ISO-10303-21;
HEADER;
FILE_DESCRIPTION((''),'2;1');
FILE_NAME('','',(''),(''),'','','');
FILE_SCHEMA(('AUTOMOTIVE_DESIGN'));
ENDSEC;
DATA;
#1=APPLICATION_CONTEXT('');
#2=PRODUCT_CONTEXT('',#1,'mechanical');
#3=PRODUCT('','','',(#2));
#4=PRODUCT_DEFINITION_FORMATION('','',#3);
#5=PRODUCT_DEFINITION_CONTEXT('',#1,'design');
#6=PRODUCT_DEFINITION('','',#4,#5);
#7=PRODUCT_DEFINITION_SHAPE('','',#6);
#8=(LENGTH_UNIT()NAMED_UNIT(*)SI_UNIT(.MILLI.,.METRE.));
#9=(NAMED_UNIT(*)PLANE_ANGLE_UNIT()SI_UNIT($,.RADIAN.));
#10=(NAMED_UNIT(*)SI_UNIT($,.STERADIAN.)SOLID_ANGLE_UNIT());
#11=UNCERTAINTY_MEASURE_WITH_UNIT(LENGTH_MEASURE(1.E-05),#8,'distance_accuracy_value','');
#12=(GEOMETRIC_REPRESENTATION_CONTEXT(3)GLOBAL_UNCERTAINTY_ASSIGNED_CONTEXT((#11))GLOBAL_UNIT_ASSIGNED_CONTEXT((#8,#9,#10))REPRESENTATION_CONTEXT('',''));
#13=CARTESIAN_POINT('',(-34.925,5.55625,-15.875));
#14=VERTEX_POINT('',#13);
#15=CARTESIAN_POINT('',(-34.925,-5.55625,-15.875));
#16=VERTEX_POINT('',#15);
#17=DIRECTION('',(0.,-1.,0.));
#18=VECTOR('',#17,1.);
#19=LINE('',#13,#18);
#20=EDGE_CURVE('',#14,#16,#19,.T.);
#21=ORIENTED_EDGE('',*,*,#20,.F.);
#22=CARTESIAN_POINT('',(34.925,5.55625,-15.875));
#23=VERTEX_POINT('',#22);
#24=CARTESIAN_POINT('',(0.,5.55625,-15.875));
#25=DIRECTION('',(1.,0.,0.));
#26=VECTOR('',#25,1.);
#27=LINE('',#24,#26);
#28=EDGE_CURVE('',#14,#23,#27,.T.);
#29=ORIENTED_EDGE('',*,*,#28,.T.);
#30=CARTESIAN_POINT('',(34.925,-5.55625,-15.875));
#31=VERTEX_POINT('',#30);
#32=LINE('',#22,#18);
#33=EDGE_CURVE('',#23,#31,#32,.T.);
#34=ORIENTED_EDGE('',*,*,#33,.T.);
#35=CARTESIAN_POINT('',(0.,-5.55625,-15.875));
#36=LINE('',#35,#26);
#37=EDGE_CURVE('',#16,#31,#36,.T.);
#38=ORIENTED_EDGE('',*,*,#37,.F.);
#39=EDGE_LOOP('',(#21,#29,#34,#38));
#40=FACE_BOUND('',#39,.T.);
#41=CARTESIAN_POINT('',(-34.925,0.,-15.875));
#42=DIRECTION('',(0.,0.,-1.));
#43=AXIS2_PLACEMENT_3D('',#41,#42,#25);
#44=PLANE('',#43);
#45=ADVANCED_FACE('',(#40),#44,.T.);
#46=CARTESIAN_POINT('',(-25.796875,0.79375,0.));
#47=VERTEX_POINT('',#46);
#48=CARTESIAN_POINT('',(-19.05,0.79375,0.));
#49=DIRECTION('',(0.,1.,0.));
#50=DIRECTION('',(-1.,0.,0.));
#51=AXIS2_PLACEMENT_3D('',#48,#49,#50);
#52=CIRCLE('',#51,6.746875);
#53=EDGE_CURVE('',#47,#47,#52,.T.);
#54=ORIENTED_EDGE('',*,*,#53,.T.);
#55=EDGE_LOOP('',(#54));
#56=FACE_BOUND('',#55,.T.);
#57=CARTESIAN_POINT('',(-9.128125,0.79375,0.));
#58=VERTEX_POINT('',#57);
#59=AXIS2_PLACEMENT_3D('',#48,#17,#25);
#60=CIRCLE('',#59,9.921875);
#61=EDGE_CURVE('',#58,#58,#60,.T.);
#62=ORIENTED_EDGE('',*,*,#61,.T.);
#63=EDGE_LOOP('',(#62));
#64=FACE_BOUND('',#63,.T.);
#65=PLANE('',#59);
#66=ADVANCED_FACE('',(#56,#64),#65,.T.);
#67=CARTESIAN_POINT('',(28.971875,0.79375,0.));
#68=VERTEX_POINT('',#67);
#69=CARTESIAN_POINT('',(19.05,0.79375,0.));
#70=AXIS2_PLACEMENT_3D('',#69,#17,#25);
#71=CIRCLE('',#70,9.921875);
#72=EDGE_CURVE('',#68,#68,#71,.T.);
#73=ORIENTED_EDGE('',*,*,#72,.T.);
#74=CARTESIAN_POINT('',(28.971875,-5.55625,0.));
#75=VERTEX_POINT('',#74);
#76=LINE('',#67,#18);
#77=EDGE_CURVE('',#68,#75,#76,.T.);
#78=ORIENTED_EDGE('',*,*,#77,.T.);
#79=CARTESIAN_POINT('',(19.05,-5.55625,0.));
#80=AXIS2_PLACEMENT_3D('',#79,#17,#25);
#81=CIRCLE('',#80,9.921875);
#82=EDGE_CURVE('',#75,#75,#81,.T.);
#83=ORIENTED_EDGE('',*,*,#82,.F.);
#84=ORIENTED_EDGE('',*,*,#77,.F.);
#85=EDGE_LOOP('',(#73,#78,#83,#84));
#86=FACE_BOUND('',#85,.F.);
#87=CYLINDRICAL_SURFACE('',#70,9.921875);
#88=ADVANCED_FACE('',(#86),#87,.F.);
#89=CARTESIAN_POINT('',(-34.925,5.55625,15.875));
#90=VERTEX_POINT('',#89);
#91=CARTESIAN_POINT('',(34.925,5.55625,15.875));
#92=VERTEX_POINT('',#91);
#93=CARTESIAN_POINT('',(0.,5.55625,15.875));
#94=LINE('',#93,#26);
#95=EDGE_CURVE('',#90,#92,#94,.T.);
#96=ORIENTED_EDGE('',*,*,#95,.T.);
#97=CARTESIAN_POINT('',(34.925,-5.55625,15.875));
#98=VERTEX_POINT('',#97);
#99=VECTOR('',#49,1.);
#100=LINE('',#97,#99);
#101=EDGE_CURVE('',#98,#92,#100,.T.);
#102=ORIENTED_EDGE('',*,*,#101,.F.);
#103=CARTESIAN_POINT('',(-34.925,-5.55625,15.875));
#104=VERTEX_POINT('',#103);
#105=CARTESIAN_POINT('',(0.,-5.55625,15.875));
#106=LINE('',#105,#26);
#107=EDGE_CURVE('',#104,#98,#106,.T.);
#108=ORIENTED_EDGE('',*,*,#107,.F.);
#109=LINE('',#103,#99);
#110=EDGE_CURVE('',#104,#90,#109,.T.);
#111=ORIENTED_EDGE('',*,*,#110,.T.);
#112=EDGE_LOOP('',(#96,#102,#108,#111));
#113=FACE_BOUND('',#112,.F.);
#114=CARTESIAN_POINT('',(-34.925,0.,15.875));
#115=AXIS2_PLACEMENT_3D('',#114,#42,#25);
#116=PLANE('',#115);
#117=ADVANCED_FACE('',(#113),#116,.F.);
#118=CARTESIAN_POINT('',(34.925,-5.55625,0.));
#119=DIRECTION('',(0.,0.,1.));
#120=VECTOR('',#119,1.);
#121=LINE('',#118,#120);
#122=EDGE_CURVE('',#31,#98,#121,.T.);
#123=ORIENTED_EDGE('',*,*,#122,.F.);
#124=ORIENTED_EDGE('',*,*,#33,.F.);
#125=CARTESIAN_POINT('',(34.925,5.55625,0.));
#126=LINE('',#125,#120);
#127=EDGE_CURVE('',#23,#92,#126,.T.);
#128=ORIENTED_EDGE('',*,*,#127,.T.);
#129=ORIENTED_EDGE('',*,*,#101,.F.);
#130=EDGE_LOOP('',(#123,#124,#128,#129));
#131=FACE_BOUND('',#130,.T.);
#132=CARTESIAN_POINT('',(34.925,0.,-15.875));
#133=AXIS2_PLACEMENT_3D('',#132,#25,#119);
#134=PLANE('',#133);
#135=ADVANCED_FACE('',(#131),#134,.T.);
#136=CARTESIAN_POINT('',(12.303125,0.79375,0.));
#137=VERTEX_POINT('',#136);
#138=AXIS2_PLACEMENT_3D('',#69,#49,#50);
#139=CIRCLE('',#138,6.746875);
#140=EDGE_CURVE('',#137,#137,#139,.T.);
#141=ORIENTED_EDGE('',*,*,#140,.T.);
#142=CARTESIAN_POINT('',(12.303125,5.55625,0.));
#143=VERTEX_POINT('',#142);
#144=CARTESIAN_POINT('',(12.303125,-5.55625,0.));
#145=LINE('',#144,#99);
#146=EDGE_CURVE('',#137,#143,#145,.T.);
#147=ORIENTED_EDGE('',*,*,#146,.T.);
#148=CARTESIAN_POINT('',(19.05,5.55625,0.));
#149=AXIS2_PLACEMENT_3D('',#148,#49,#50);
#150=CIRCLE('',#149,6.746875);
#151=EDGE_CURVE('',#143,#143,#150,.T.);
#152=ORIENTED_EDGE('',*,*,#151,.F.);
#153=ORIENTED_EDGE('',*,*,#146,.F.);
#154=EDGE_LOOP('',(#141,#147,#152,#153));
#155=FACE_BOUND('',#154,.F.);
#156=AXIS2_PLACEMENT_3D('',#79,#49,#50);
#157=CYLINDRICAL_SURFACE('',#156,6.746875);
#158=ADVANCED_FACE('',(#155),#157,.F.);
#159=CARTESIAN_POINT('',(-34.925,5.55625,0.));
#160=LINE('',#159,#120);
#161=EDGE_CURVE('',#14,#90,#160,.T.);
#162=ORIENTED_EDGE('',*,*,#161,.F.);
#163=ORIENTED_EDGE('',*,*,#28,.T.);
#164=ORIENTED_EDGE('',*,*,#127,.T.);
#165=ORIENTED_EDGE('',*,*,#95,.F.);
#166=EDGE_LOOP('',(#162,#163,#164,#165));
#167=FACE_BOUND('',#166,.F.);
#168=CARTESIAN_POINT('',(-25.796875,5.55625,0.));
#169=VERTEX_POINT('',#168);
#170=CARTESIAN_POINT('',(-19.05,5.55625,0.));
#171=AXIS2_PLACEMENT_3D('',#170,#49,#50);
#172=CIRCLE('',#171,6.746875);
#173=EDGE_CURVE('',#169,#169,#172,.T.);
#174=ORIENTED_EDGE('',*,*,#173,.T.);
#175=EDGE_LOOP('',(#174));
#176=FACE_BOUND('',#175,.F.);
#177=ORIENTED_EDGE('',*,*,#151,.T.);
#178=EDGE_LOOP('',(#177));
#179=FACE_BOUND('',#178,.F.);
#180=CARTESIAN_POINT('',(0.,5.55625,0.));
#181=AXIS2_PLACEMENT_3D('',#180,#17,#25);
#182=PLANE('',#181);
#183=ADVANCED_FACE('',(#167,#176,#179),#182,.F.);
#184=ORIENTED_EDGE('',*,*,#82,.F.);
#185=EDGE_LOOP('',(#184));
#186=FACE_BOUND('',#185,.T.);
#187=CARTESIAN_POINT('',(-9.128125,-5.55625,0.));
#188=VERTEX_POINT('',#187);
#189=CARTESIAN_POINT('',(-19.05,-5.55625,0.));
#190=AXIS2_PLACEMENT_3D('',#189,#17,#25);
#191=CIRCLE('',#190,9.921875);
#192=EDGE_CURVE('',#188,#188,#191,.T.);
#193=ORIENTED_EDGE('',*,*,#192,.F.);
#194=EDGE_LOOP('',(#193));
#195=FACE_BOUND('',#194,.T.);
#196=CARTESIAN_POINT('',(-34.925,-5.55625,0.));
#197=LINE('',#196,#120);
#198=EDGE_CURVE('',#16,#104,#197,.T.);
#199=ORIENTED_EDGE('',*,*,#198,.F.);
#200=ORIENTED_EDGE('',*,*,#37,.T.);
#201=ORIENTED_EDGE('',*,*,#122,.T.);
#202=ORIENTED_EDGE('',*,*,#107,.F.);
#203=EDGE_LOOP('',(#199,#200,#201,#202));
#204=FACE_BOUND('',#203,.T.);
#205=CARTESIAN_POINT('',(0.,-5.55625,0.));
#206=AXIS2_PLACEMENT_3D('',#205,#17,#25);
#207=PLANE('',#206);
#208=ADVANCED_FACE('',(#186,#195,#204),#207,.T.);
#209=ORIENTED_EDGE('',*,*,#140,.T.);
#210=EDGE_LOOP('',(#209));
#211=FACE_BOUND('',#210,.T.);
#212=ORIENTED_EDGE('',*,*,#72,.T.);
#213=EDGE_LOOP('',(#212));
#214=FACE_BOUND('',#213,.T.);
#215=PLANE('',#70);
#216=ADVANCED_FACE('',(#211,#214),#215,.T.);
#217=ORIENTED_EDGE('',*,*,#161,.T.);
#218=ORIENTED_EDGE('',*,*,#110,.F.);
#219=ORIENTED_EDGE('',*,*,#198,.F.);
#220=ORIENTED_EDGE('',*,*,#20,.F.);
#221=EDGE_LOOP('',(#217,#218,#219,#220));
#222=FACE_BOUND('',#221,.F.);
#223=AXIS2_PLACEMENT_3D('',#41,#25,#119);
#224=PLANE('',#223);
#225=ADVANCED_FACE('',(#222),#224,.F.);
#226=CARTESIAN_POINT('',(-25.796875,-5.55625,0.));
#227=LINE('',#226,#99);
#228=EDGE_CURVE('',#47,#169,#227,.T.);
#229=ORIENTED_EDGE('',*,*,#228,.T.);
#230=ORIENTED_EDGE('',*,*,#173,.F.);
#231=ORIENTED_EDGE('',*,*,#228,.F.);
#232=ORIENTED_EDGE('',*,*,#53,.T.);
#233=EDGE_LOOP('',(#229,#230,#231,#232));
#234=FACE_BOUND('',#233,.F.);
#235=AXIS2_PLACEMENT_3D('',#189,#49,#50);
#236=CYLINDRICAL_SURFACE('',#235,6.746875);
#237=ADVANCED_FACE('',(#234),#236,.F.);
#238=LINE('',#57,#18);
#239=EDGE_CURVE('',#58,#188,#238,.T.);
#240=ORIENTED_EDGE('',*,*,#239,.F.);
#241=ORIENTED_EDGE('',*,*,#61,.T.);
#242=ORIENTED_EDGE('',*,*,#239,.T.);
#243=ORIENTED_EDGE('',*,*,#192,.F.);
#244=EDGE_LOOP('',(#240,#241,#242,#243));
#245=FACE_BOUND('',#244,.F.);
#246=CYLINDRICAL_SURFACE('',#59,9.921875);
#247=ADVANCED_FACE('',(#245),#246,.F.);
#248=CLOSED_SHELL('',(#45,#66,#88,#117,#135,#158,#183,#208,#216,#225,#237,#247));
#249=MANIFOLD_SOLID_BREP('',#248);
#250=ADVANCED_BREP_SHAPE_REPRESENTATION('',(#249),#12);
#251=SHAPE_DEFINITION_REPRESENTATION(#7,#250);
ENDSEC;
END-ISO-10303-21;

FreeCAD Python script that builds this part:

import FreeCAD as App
import Part
import Sketcher

V = App.Vector
Q = App.Units.Quantity

doc = App.newDocument("Part")
body = doc.addObject("PartDesign::Body", "Body")

sketch1 = doc.addObject("Sketcher::SketchObject", "Sketch")
body.addObject(sketch1)
sketch1.AttachmentSupport = (doc.XZ_Plane, [""])
sketch1.MapMode = "FlatFace"
sketch1.addGeometry(Part.LineSegment(V(-35, 16, 0), V(-35, -16, 0)), False)
sketch1.addGeometry(Part.LineSegment(V(-35, -16, 0), V(35, -16, 0)), False)
sketch1.addGeometry(Part.LineSegment(V(35, -16, 0), V(35, 16, 0)), False)
sketch1.addGeometry(Part.LineSegment(V(35, 16, 0), V(-35, 16, 0)), False)
sketch1.addConstraint(Sketcher.Constraint("Coincident", 0, 2, 1, 1))
sketch1.addConstraint(Sketcher.Constraint("Coincident", 1, 2, 2, 1))
sketch1.addConstraint(Sketcher.Constraint("Coincident", 2, 2, 3, 1))
sketch1.addConstraint(Sketcher.Constraint("Coincident", 3, 2, 0, 1))
sketch1.addConstraint(Sketcher.Constraint("Vertical", 0))
sketch1.addConstraint(Sketcher.Constraint("Horizontal", 1))
sketch1.addConstraint(Sketcher.Constraint("Vertical", 2))
sketch1.addConstraint(Sketcher.Constraint("Horizontal", 3))
sketch1.addConstraint(Sketcher.Constraint("Symmetric", 0, 2, 2, 2, -1, 1))
sketch1.addConstraint(Sketcher.Constraint("DistanceX", 1, 1, 1, 2, Q("2.75 in")))
sketch1.addConstraint(Sketcher.Constraint("DistanceY", 0, 2, 0, 1, Q("1.25 in")))
pad1 = doc.addObject("PartDesign::Pad", "Pad")
body.addObject(pad1)
pad1.Profile = sketch1
pad1.Length = Q("0.4375 in")
pad1.Midplane = True

sketch2 = doc.addObject("Sketcher::SketchObject", "Sketch001")
body.addObject(sketch2)
sketch2.AttachmentSupport = (doc.XZ_Plane, [""])
sketch2.MapMode = "FlatFace"
sketch2.AttachmentOffset = App.Placement(V(0, 0, 0.21875 * 25.4), App.Rotation())
sketch2.addGeometry(Part.Circle(V(-19, 0, 0), V(0, 0, 1), 7), False)
sketch2.addGeometry(Part.Circle(V(19, 0, 0), V(0, 0, 1), 7), False)
sketch2.addConstraint(Sketcher.Constraint("Equal", 0, 1))
sketch2.addConstraint(Sketcher.Constraint("Symmetric", 0, 3, 1, 3, -1, 1))
sketch2.addConstraint(Sketcher.Constraint("PointOnObject", 0, 3, -1))
sketch2.addConstraint(Sketcher.Constraint("Diameter", 0, Q("0.53125 in")))
sketch2.addConstraint(Sketcher.Constraint("DistanceX", 0, 3, 1, 3, Q("1.5 in")))
doc.recompute()
hole = doc.addObject("PartDesign::Hole", "Hole")
body.addObject(hole)
hole.Profile = sketch2
hole.ThreadType = "None"
hole.Diameter = Q("0.53125 in")
hole.DepthType = "ThroughAll"
hole.HoleCutType = "Counterbore"
hole.HoleCutDiameter = Q("0.78125 in")
hole.HoleCutDepth = Q("0.25 in")

doc.recompute()
